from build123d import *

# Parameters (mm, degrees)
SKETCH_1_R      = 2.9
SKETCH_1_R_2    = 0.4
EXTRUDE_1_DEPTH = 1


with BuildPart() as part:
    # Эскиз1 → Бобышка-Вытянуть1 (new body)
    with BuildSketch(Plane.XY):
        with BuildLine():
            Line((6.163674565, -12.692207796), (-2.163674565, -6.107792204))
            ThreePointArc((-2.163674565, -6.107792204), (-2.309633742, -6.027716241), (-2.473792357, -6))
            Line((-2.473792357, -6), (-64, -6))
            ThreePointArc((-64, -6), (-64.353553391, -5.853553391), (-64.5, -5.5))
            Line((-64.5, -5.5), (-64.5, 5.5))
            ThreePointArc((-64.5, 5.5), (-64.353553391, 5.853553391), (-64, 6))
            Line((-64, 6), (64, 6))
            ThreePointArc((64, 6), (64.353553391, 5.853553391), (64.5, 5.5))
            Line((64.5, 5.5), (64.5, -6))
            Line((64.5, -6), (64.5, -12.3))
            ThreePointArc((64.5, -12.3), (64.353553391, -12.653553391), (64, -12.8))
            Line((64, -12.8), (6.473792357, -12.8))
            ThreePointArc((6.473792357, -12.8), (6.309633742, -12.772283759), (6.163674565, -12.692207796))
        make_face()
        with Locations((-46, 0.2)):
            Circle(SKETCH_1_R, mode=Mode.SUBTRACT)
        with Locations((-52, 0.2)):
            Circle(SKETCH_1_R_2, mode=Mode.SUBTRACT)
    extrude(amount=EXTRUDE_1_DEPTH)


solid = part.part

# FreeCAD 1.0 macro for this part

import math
import FreeCAD as App
import Part
import Sketcher
from FreeCAD import Vector
Q = App.Units.Quantity

doc = App.newDocument("Part")
params = doc.addObject("Spreadsheet::Sheet", "Params")
for row, (alias, value) in enumerate([
    ("sketch1_diameter", "5.8 mm"),
    ("sketch1_diameter2", "0.8 mm"),
    ("sketch1_radius", "0.5 mm"),
    ("sketch1_width", "128 mm"),
    ("sketch1_height", "11 mm"),
    ("pad1_length", "1 mm"),
], start=1):
    params.set(f"A{row}", alias)
    params.set(f"B{row}", "=" + value)
    params.setAlias(f"B{row}", alias)

body = doc.addObject("PartDesign::Body", "Body")

sketch1 = body.newObject("Sketcher::SketchObject", "Sketch")
sketch1.AttachmentSupport = (doc.getObject("XY_Plane"), [""])
sketch1.MapMode = "FlatFace"
sketch1.addGeometry([
    Part.LineSegment(Vector(-2.16, -6.11, 0), Vector(6.16, -12.69, 0)),
    Part.ArcOfCircle(Part.Circle(Vector(6.47, -12.3, 0), Vector(0, 0, 1), 0.5), math.radians(-128), math.radians(-90)),
    Part.LineSegment(Vector(6.47, -12.8, 0), Vector(64, -12.8, 0)),
    Part.ArcOfCircle(Part.Circle(Vector(64, -12.3, 0), Vector(0, 0, 1), 0.5), math.radians(-90), math.radians(0)),
    Part.LineSegment(Vector(64.5, -12.3, 0), Vector(64.5, 5.5, 0)),
    Part.ArcOfCircle(Part.Circle(Vector(64, 5.5, 0), Vector(0, 0, 1), 0.5), math.radians(0), math.radians(90)),
    Part.LineSegment(Vector(64, 6, 0), Vector(-64, 6, 0)),
    Part.ArcOfCircle(Part.Circle(Vector(-64, 5.5, 0), Vector(0, 0, 1), 0.5), math.radians(90), math.radians(180)),
    Part.LineSegment(Vector(-64.5, 5.5, 0), Vector(-64.5, -5.5, 0)),
    Part.ArcOfCircle(Part.Circle(Vector(-64, -5.5, 0), Vector(0, 0, 1), 0.5), math.radians(180), math.radians(270)),
    Part.LineSegment(Vector(-64, -6, 0), Vector(-2.47, -6, 0)),
    Part.ArcOfCircle(Part.Circle(Vector(-2.47, -6.5, 0), Vector(0, 0, 1), 0.5), math.radians(52), math.radians(90)),
    Part.Circle(Vector(-46, 0.2, 0), Vector(0, 0, 1), 2.9),
    Part.Circle(Vector(-52, 0.2, 0), Vector(0, 0, 1), 0.4),
], False)
sketch1.addConstraint([
    Sketcher.Constraint("Tangent", 0, 2, 1, 1),
    Sketcher.Constraint("Tangent", 1, 2, 2, 1),
    Sketcher.Constraint("Tangent", 2, 2, 3, 1),
    Sketcher.Constraint("Tangent", 3, 2, 4, 1),
    Sketcher.Constraint("Tangent", 4, 2, 5, 1),
    Sketcher.Constraint("Tangent", 5, 2, 6, 1),
    Sketcher.Constraint("Tangent", 6, 2, 7, 1),
    Sketcher.Constraint("Tangent", 7, 2, 8, 1),
    Sketcher.Constraint("Tangent", 8, 2, 9, 1),
    Sketcher.Constraint("Tangent", 9, 2, 10, 1),
    Sketcher.Constraint("Tangent", 10, 2, 11, 2),
    Sketcher.Constraint("Tangent", 11, 1, 0, 1),
    Sketcher.Constraint("Horizontal", 2),
    Sketcher.Constraint("Vertical", 4),
    Sketcher.Constraint("Horizontal", 6),
    Sketcher.Constraint("Vertical", 8),
    Sketcher.Constraint("Horizontal", 10),
    Sketcher.Constraint("Equal", 1, 3),
    Sketcher.Constraint("Equal", 3, 5),
    Sketcher.Constraint("Equal", 5, 7),
    Sketcher.Constraint("Equal", 7, 9),
    Sketcher.Constraint("Equal", 9, 11),
    Sketcher.Constraint("Symmetric", 5, 3, 9, 3, -1, 1),
    Sketcher.Constraint("Horizontal", 12, 3, 13, 3),
    Sketcher.Constraint("Diameter", 12, Q("5.8 mm")),
    Sketcher.Constraint("Diameter", 13, Q("0.8 mm")),
    Sketcher.Constraint("Radius", 1, Q("0.5 mm")),
    Sketcher.Constraint("DistanceX", 6, 2, 6, 1, Q("128 mm")),
    Sketcher.Constraint("DistanceY", 8, 2, 8, 1, Q("11 mm")),
    Sketcher.Constraint("DistanceY", 4, 1, 4, 2, Q("17.8 mm")),
    Sketcher.Constraint("DistanceX", 12, 3, -1, 1, Q("46 mm")),
    Sketcher.Constraint("DistanceX", 13, 3, -1, 1, Q("52 mm")),
    Sketcher.Constraint("DistanceY", 1, 2, 12, 3, Q("13 mm")),
    Sketcher.Constraint("Distance", 0, Q("10.615991 mm")),
    Sketcher.Constraint("DistanceX", 2, 1, 2, 2, Q("57.526208 mm")),
])
sketch1.setExpression("Constraints[24]", "Params.sketch1_diameter")
sketch1.setExpression("Constraints[25]", "Params.sketch1_diameter2")
sketch1.setExpression("Constraints[26]", "Params.sketch1_radius")
sketch1.setExpression("Constraints[27]", "Params.sketch1_width")
sketch1.setExpression("Constraints[28]", "Params.sketch1_height")
pad1 = body.newObject("PartDesign::Pad", "Pad")
pad1.Profile = sketch1
pad1.setExpression("Length", "Params.pad1_length")

doc.recompute()
